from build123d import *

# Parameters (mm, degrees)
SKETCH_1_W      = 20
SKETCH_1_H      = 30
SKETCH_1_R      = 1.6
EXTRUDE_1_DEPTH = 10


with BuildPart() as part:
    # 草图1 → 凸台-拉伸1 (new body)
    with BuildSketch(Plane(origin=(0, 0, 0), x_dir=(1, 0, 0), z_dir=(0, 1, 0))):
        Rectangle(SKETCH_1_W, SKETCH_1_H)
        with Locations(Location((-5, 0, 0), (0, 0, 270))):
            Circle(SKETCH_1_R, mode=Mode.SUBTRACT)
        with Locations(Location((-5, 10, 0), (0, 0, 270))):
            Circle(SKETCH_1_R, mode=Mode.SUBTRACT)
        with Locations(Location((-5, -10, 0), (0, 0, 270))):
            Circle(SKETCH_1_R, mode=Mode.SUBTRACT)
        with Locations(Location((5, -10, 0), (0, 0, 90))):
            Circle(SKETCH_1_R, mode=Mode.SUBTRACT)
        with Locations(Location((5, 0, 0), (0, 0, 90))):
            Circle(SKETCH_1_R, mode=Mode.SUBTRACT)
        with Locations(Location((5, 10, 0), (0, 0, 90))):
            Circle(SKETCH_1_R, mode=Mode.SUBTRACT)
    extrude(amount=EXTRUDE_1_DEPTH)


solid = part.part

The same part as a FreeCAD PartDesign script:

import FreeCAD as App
import Part
import Sketcher
Q = App.Units.Quantity

doc = App.newDocument("Part")
body = doc.addObject("PartDesign::Body", "Body")

sketch1 = doc.addObject("Sketcher::SketchObject", "Sketch")
body.addObject(sketch1)
sketch1.AttachmentSupport = (doc.XZ_Plane, [""])
sketch1.MapMode = "FlatFace"
sketch1.addGeometry(Part.LineSegment(App.Vector(-10, -15, 0), App.Vector(-10, 15, 0)), False)
sketch1.addGeometry(Part.LineSegment(App.Vector(-10, 15, 0), App.Vector(10, 15, 0)), False)
sketch1.addGeometry(Part.LineSegment(App.Vector(10, 15, 0), App.Vector(10, -15, 0)), False)
sketch1.addGeometry(Part.LineSegment(App.Vector(10, -15, 0), App.Vector(-10, -15, 0)), False)
sketch1.addGeometry(Part.Circle(App.Vector(-5, 10, 0), App.Vector(0, 0, 1), 1.6), False)
sketch1.addGeometry(Part.Circle(App.Vector(5, 10, 0), App.Vector(0, 0, 1), 1.6), False)
sketch1.addGeometry(Part.Circle(App.Vector(-5, 0, 0), App.Vector(0, 0, 1), 1.6), False)
sketch1.addGeometry(Part.Circle(App.Vector(-5, -10, 0), App.Vector(0, 0, 1), 1.6), False)
sketch1.addGeometry(Part.Circle(App.Vector(5, 0, 0), App.Vector(0, 0, 1), 1.6), False)
sketch1.addGeometry(Part.Circle(App.Vector(5, -10, 0), App.Vector(0, 0, 1), 1.6), False)
sketch1.addConstraint(Sketcher.Constraint("Coincident", 0, 2, 1, 1))
sketch1.addConstraint(Sketcher.Constraint("Coincident", 1, 2, 2, 1))
sketch1.addConstraint(Sketcher.Constraint("Coincident", 2, 2, 3, 1))
sketch1.addConstraint(Sketcher.Constraint("Coincident", 3, 2, 0, 1))
sketch1.addConstraint(Sketcher.Constraint("Vertical", 0))
sketch1.addConstraint(Sketcher.Constraint("Horizontal", 1))
sketch1.addConstraint(Sketcher.Constraint("Vertical", 2))
sketch1.addConstraint(Sketcher.Constraint("Horizontal", 3))
sketch1.addConstraint(Sketcher.Constraint("Equal", 4, 5))
sketch1.addConstraint(Sketcher.Constraint("Equal", 5, 6))
sketch1.addConstraint(Sketcher.Constraint("Equal", 6, 7))
sketch1.addConstraint(Sketcher.Constraint("Equal", 7, 8))
sketch1.addConstraint(Sketcher.Constraint("Equal", 8, 9))
sketch1.addConstraint(Sketcher.Constraint("Symmetric", 5, 3, 7, 3, -1, 1))
sketch1.addConstraint(Sketcher.Constraint("Symmetric", 6, 3, 8, 3, -1, 1))
sketch1.addConstraint(Sketcher.Constraint("Symmetric", 4, 3, 9, 3, -1, 1))
sketch1.addConstraint(Sketcher.Constraint("Symmetric", 0, 2, 2, 2, -1, 1))
sketch1.addConstraint(Sketcher.Constraint("Symmetric", 4, 3, 5, 3, -2))
sketch1.addConstraint(Sketcher.Constraint("PointOnObject", 6, 3, -1))
sketch1.addConstraint(Sketcher.Constraint("Vertical", 4, 3, 6, 3))
sketch1.addConstraint(Sketcher.Constraint("Diameter", 4, Q("3.2 mm")))
sketch1.addConstraint(Sketcher.Constraint("DistanceX", 1, 1, 1, 2, Q("20 mm")))
sketch1.addConstraint(Sketcher.Constraint("DistanceY", 0, 1, 0, 2, Q("30 mm")))
sketch1.addConstraint(Sketcher.Constraint("DistanceX", 4, 3, -1, 1, Q("5 mm")))
sketch1.addConstraint(Sketcher.Constraint("DistanceY", -1, 1, 4, 3, Q("10 mm")))
pad1 = doc.addObject("PartDesign::Pad", "Pad")
body.addObject(pad1)
pad1.Profile = sketch1
pad1.Length = 10
pad1.Reversed = True

doc.recompute()
